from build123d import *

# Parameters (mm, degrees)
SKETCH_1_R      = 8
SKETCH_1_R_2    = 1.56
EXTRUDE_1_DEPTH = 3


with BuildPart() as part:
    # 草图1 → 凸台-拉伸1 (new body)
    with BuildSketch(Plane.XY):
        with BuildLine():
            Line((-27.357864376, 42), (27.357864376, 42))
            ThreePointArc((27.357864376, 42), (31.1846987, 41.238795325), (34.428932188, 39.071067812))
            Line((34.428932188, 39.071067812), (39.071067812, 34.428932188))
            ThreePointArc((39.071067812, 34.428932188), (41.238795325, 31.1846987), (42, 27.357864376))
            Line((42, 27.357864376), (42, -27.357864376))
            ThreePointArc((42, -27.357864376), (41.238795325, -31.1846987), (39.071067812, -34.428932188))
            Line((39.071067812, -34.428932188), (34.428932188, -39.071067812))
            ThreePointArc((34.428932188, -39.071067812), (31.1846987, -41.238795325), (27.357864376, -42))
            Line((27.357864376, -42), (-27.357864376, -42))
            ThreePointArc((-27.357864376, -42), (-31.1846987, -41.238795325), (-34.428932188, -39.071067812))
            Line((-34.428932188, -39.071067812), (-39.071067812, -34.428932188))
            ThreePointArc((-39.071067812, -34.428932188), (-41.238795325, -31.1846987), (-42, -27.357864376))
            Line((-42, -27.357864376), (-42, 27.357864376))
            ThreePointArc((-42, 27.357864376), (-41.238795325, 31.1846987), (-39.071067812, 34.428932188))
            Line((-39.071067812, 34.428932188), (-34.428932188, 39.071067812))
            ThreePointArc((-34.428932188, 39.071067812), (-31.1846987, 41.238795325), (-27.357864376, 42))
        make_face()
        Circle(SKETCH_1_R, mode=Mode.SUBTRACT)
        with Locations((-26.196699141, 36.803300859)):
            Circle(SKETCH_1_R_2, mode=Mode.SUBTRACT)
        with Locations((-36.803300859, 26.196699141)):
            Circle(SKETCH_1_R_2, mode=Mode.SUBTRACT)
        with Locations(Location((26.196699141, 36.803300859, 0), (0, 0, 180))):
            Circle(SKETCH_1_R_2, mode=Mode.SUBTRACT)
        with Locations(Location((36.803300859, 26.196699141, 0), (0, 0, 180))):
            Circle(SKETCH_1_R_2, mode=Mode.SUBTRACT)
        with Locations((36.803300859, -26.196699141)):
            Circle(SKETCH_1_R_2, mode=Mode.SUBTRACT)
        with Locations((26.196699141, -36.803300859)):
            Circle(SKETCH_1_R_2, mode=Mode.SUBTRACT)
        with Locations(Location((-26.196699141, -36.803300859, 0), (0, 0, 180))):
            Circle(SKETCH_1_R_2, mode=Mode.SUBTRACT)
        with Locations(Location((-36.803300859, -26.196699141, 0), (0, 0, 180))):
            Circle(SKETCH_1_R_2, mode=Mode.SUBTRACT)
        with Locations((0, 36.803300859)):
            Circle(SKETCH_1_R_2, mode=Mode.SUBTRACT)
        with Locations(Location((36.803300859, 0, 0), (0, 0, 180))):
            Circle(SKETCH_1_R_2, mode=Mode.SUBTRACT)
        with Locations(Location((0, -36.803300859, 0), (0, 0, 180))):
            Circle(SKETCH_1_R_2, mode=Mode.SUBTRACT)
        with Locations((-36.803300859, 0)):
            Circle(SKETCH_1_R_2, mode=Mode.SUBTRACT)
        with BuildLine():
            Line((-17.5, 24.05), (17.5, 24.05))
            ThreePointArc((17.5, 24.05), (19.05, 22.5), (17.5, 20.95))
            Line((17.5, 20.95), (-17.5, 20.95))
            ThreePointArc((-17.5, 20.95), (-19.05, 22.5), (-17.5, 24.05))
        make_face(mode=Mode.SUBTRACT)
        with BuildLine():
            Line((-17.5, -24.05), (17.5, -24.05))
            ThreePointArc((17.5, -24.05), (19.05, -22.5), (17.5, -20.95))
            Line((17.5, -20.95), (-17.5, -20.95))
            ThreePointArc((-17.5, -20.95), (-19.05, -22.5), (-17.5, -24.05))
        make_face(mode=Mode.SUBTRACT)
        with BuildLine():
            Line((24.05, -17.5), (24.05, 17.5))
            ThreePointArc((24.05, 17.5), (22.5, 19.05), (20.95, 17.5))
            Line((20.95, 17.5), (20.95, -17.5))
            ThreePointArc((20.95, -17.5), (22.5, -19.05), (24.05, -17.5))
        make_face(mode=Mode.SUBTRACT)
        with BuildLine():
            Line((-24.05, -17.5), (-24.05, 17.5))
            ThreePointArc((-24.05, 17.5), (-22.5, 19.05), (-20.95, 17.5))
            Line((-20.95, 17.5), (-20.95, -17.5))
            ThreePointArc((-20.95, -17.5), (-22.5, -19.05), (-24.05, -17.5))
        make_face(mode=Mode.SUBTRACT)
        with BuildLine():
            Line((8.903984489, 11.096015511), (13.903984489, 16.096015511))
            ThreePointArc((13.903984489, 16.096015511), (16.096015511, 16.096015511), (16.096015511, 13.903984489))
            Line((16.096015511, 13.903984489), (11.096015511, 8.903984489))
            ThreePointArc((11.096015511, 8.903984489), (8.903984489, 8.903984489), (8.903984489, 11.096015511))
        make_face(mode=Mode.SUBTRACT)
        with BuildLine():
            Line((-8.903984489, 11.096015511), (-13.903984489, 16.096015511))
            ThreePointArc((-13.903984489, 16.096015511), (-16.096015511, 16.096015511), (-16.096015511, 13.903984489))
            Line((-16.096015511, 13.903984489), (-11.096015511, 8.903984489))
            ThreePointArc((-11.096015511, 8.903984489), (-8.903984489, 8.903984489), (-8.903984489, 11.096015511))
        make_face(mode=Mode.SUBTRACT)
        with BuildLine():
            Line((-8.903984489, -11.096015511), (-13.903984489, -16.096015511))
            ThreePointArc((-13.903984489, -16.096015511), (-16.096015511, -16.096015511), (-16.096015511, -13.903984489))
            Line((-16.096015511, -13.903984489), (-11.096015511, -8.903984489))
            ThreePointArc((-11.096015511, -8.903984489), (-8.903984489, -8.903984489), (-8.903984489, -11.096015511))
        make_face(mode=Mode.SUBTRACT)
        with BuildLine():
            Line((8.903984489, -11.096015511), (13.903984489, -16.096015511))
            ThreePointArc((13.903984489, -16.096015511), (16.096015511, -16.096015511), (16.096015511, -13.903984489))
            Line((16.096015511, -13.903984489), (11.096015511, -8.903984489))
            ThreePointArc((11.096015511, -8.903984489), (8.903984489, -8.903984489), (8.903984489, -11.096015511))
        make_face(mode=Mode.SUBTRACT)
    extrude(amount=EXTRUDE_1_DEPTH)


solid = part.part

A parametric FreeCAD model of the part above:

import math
import FreeCAD as App
import Part
import Sketcher
from FreeCAD import Vector
Q = App.Units.Quantity

doc = App.newDocument("Part")
body = doc.addObject("PartDesign::Body", "Body")

# Sketch on XY plane
sketch1 = doc.addObject("Sketcher::SketchObject", "Sketch")
body.addObject(sketch1)
sketch1.AttachmentSupport = (doc.XY_Plane, [""])
sketch1.MapMode = "FlatFace"
sketch1.addGeometry(Part.LineSegment(Vector(27.4, 42, 0), Vector(-27.4, 42, 0)), False)
sketch1.addGeometry(Part.ArcOfCircle(Part.Circle(Vector(-27.4, 32, 0), Vector(0, 0, 1), 10), math.radians(90), math.radians(135)), False)
sketch1.addGeometry(Part.LineSegment(Vector(-34.4, 39.1, 0), Vector(-39.1, 34.4, 0)), False)
sketch1.addGeometry(Part.ArcOfCircle(Part.Circle(Vector(-32, 27.4, 0), Vector(0, 0, 1), 10), math.radians(135), math.radians(180)), False)
sketch1.addGeometry(Part.LineSegment(Vector(-42, 27.4, 0), Vector(-42, -27.4, 0)), False)
sketch1.addGeometry(Part.ArcOfCircle(Part.Circle(Vector(-32, -27.4, 0), Vector(0, 0, 1), 10), math.radians(180), math.radians(225)), False)
sketch1.addGeometry(Part.LineSegment(Vector(-39.1, -34.4, 0), Vector(-34.4, -39.1, 0)), False)
sketch1.addGeometry(Part.ArcOfCircle(Part.Circle(Vector(-27.4, -32, 0), Vector(0, 0, 1), 10), math.radians(-135), math.radians(-90)), False)
sketch1.addGeometry(Part.LineSegment(Vector(-27.4, -42, 0), Vector(27.4, -42, 0)), False)
sketch1.addGeometry(Part.ArcOfCircle(Part.Circle(Vector(27.4, -32, 0), Vector(0, 0, 1), 10), math.radians(-90), math.radians(-45)), False)
sketch1.addGeometry(Part.LineSegment(Vector(34.4, -39.1, 0), Vector(39.1, -34.4, 0)), False)
sketch1.addGeometry(Part.ArcOfCircle(Part.Circle(Vector(32, -27.4, 0), Vector(0, 0, 1), 10), math.radians(-45), math.radians(0)), False)
sketch1.addGeometry(Part.LineSegment(Vector(42, -27.4, 0), Vector(42, 27.4, 0)), False)
sketch1.addGeometry(Part.ArcOfCircle(Part.Circle(Vector(32, 27.4, 0), Vector(0, 0, 1), 10), math.radians(0), math.radians(45)), False)
sketch1.addGeometry(Part.LineSegment(Vector(39.1, 34.4, 0), Vector(34.4, 39.1, 0)), False)
sketch1.addGeometry(Part.ArcOfCircle(Part.Circle(Vector(27.4, 32, 0), Vector(0, 0, 1), 10), math.radians(45), math.radians(90)), False)
sketch1.addGeometry(Part.Circle(Vector(26.2, -36.8, 0), Vector(0, 0, 1), 1.6), False)
sketch1.addGeometry(Part.Circle(Vector(36.8, -26.2, 0), Vector(0, 0, 1), 1.6), False)
sketch1.addGeometry(Part.ArcOfCircle(Part.Circle(Vector(10, -10, 0), Vector(0, 0, 1), 1.6), math.radians(45), math.radians(225)), False)
sketch1.addGeometry(Part.LineSegment(Vector(11.1, -8.9, 0), Vector(16.1, -13.9, 0)), False)
sketch1.addGeometry(Part.ArcOfCircle(Part.Circle(Vector(15, -15, 0), Vector(0, 0, 1), 1.6), math.radians(-135), math.radians(45)), False)
sketch1.addGeometry(Part.LineSegment(Vector(13.9, -16.1, 0), Vector(8.9, -11.1, 0)), False)
sketch1.addGeometry(Part.Circle(Vector(0, -36.8, 0), Vector(0, 0, 1), 1.6), False)
sketch1.addGeometry(Part.ArcOfCircle(Part.Circle(Vector(-17.5, -22.5, 0), Vector(0, 0, 1), 1.6), math.radians(90), math.radians(270)), False)
sketch1.addGeometry(Part.LineSegment(Vector(-17.5, -20.9, 0), Vector(17.5, -20.9, 0)), False)
sketch1.addGeometry(Part.ArcOfCircle(Part.Circle(Vector(17.5, -22.5, 0), Vector(0, 0, 1), 1.6), math.radians(-90), math.radians(90)), False)
sketch1.addGeometry(Part.LineSegment(Vector(17.5, -24.1, 0), Vector(-17.5, -24.1, 0)), False)
sketch1.addGeometry(Part.Circle(Vector(-26.2, -36.8, 0), Vector(0, 0, 1), 1.6), False)
sketch1.addGeometry(Part.Circle(Vector(-36.8, -26.2, 0), Vector(0, 0, 1), 1.6), False)
sketch1.addGeometry(Part.LineSegment(Vector(-8.9, -11.1, 0), Vector(-13.9, -16.1, 0)), False)
sketch1.addGeometry(Part.ArcOfCircle(Part.Circle(Vector(-15, -15, 0), Vector(0, 0, 1), 1.6), math.radians(135), math.radians(315)), False)
sketch1.addGeometry(Part.LineSegment(Vector(-16.1, -13.9, 0), Vector(-11.1, -8.9, 0)), False)
sketch1.addGeometry(Part.ArcOfCircle(Part.Circle(Vector(-10, -10, 0), Vector(0, 0, 1), 1.6), math.radians(-45), math.radians(135)), False)
sketch1.addGeometry(Part.Circle(Vector(36.8, 0, 0), Vector(0, 0, 1), 1.6), False)
sketch1.addGeometry(Part.ArcOfCircle(Part.Circle(Vector(22.5, -17.5, 0), Vector(0, 0, 1), 1.6), math.radians(180), math.radians(360)), False)
sketch1.addGeometry(Part.LineSegment(Vector(20.9, -17.5, 0), Vector(20.9, 17.5, 0)), False)
sketch1.addGeometry(Part.ArcOfCircle(Part.Circle(Vector(22.5, 17.5, 0), Vector(0, 0, 1), 1.6), math.radians(0), math.radians(180)), False)
sketch1.addGeometry(Part.LineSegment(Vector(24.1, 17.5, 0), Vector(24.1, -17.5, 0)), False)
sketch1.addGeometry(Part.LineSegment(Vector(8.9, 11.1, 0), Vector(13.9, 16.1, 0)), False)
sketch1.addGeometry(Part.ArcOfCircle(Part.Circle(Vector(15, 15, 0), Vector(0, 0, 1), 1.6), math.radians(-45), math.radians(135)), False)
sketch1.addGeometry(Part.LineSegment(Vector(16.1, 13.9, 0), Vector(11.1, 8.9, 0)), False)
sketch1.addGeometry(Part.ArcOfCircle(Part.Circle(Vector(10, 10, 0), Vector(0, 0, 1), 1.6), math.radians(135), math.radians(315)), False)
sketch1.addGeometry(Part.Circle(Vector(36.8, 26.2, 0), Vector(0, 0, 1), 1.6), False)
sketch1.addGeometry(Part.Circle(Vector(26.2, 36.8, 0), Vector(0, 0, 1), 1.6), False)
sketch1.addGeometry(Part.Circle(Vector(0, 0, 0), Vector(0, 0, 1), 8), False)
sketch1.addGeometry(Part.ArcOfCircle(Part.Circle(Vector(-10, 10, 0), Vector(0, 0, 1), 1.6), math.radians(-135), math.radians(45)), False)
sketch1.addGeometry(Part.LineSegment(Vector(-11.1, 8.9, 0), Vector(-16.1, 13.9, 0)), False)
sketch1.addGeometry(Part.ArcOfCircle(Part.Circle(Vector(-15, 15, 0), Vector(0, 0, 1), 1.6), math.radians(45), math.radians(225)), False)
sketch1.addGeometry(Part.LineSegment(Vector(-13.9, 16.1, 0), Vector(-8.9, 11.1, 0)), False)
sketch1.addGeometry(Part.LineSegment(Vector(-24.1, -17.5, 0), Vector(-24.1, 17.5, 0)), False)
sketch1.addGeometry(Part.ArcOfCircle(Part.Circle(Vector(-22.5, 17.5, 0), Vector(0, 0, 1), 1.6), math.radians(0), math.radians(180)), False)
sketch1.addGeometry(Part.LineSegment(Vector(-20.9, 17.5, 0), Vector(-20.9, -17.5, 0)), False)
sketch1.addGeometry(Part.ArcOfCircle(Part.Circle(Vector(-22.5, -17.5, 0), Vector(0, 0, 1), 1.6), math.radians(180), math.radians(360)), False)
sketch1.addGeometry(Part.Circle(Vector(-36.8, 0, 0), Vector(0, 0, 1), 1.6), False)
sketch1.addGeometry(Part.LineSegment(Vector(-17.5, 24.1, 0), Vector(17.5, 24.1, 0)), False)
sketch1.addGeometry(Part.ArcOfCircle(Part.Circle(Vector(17.5, 22.5, 0), Vector(0, 0, 1), 1.6), math.radians(-90), math.radians(90)), False)
sketch1.addGeometry(Part.LineSegment(Vector(17.5, 20.9, 0), Vector(-17.5, 20.9, 0)), False)
sketch1.addGeometry(Part.ArcOfCircle(Part.Circle(Vector(-17.5, 22.5, 0), Vector(0, 0, 1), 1.6), math.radians(90), math.radians(270)), False)
sketch1.addGeometry(Part.Circle(Vector(0, 36.8, 0), Vector(0, 0, 1), 1.6), False)
sketch1.addGeometry(Part.Circle(Vector(-36.8, 26.2, 0), Vector(0, 0, 1), 1.6), False)
sketch1.addGeometry(Part.Circle(Vector(-26.2, 36.8, 0), Vector(0, 0, 1), 1.6), False)
sketch1.addConstraint(Sketcher.Constraint("Tangent", 0, 2, 1, 1))
sketch1.addConstraint(Sketcher.Constraint("Tangent", 1, 2, 2, 1))
sketch1.addConstraint(Sketcher.Constraint("Tangent", 2, 2, 3, 1))
sketch1.addConstraint(Sketcher.Constraint("Tangent", 3, 2, 4, 1))
sketch1.addConstraint(Sketcher.Constraint("Tangent", 4, 2, 5, 1))
sketch1.addConstraint(Sketcher.Constraint("Tangent", 5, 2, 6, 1))
sketch1.addConstraint(Sketcher.Constraint("Tangent", 6, 2, 7, 1))
sketch1.addConstraint(Sketcher.Constraint("Tangent", 7, 2, 8, 1))
sketch1.addConstraint(Sketcher.Constraint("Tangent", 8, 2, 9, 1))
sketch1.addConstraint(Sketcher.Constraint("Tangent", 9, 2, 10, 1))
sketch1.addConstraint(Sketcher.Constraint("Tangent", 10, 2, 11, 1))
sketch1.addConstraint(Sketcher.Constraint("Tangent", 11, 2, 12, 1))
sketch1.addConstraint(Sketcher.Constraint("Tangent", 12, 2, 13, 1))
sketch1.addConstraint(Sketcher.Constraint("Tangent", 13, 2, 14, 1))
sketch1.addConstraint(Sketcher.Constraint("Tangent", 14, 2, 15, 1))
sketch1.addConstraint(Sketcher.Constraint("Tangent", 15, 2, 0, 1))
sketch1.addConstraint(Sketcher.Constraint("Tangent", 18, 1, 19, 1))
sketch1.addConstraint(Sketcher.Constraint("Tangent", 19, 2, 20, 2))
sketch1.addConstraint(Sketcher.Constraint("Tangent", 20, 1, 21, 1))
sketch1.addConstraint(Sketcher.Constraint("Tangent", 21, 2, 18, 2))
sketch1.addConstraint(Sketcher.Constraint("Tangent", 23, 1, 24, 1))
sketch1.addConstraint(Sketcher.Constraint("Tangent", 24, 2, 25, 2))
sketch1.addConstraint(Sketcher.Constraint("Tangent", 25, 1, 26, 1))
sketch1.addConstraint(Sketcher.Constraint("Tangent", 26, 2, 23, 2))
sketch1.addConstraint(Sketcher.Constraint("Tangent", 29, 2, 30, 2))
sketch1.addConstraint(Sketcher.Constraint("Tangent", 30, 1, 31, 1))
sketch1.addConstraint(Sketcher.Constraint("Tangent", 31, 2, 32, 2))
sketch1.addConstraint(Sketcher.Constraint("Tangent", 32, 1, 29, 1))
sketch1.addConstraint(Sketcher.Constraint("Tangent", 34, 1, 35, 1))
sketch1.addConstraint(Sketcher.Constraint("Tangent", 35, 2, 36, 2))
sketch1.addConstraint(Sketcher.Constraint("Tangent", 36, 1, 37, 1))
sketch1.addConstraint(Sketcher.Constraint("Tangent", 37, 2, 34, 2))
sketch1.addConstraint(Sketcher.Constraint("Tangent", 38, 2, 39, 2))
sketch1.addConstraint(Sketcher.Constraint("Tangent", 39, 1, 40, 1))
sketch1.addConstraint(Sketcher.Constraint("Tangent", 40, 2, 41, 2))
sketch1.addConstraint(Sketcher.Constraint("Tangent", 41, 1, 38, 1))
sketch1.addConstraint(Sketcher.Constraint("Tangent", 45, 1, 46, 1))
sketch1.addConstraint(Sketcher.Constraint("Tangent", 46, 2, 47, 2))
sketch1.addConstraint(Sketcher.Constraint("Tangent", 47, 1, 48, 1))
sketch1.addConstraint(Sketcher.Constraint("Tangent", 48, 2, 45, 2))
sketch1.addConstraint(Sketcher.Constraint("Tangent", 49, 2, 50, 2))
sketch1.addConstraint(Sketcher.Constraint("Tangent", 50, 1, 51, 1))
sketch1.addConstraint(Sketcher.Constraint("Tangent", 51, 2, 52, 2))
sketch1.addConstraint(Sketcher.Constraint("Tangent", 52, 1, 49, 1))
sketch1.addConstraint(Sketcher.Constraint("Tangent", 54, 2, 55, 2))
sketch1.addConstraint(Sketcher.Constraint("Tangent", 55, 1, 56, 1))
sketch1.addConstraint(Sketcher.Constraint("Tangent", 56, 2, 57, 2))
sketch1.addConstraint(Sketcher.Constraint("Tangent", 57, 1, 54, 1))
sketch1.addConstraint(Sketcher.Constraint("Horizontal", 0))
sketch1.addConstraint(Sketcher.Constraint("Vertical", 4))
sketch1.addConstraint(Sketcher.Constraint("Horizontal", 8))
sketch1.addConstraint(Sketcher.Constraint("Vertical", 12))
sketch1.addConstraint(Sketcher.Constraint("Horizontal", 24))
sketch1.addConstraint(Sketcher.Constraint("Horizontal", 26))
sketch1.addConstraint(Sketcher.Constraint("Vertical", 35))
sketch1.addConstraint(Sketcher.Constraint("Vertical", 37))
sketch1.addConstraint(Sketcher.Constraint("Vertical", 49))
sketch1.addConstraint(Sketcher.Constraint("Vertical", 51))
sketch1.addConstraint(Sketcher.Constraint("Horizontal", 54))
sketch1.addConstraint(Sketcher.Constraint("Horizontal", 56))
sketch1.addConstraint(Sketcher.Constraint("Coincident", 44, 3, -1, 1))
sketch1.addConstraint(Sketcher.Constraint("Equal", 1, 3))
sketch1.addConstraint(Sketcher.Constraint("Equal", 3, 5))
sketch1.addConstraint(Sketcher.Constraint("Equal", 5, 7))
sketch1.addConstraint(Sketcher.Constraint("Equal", 7, 9))
sketch1.addConstraint(Sketcher.Constraint("Equal", 9, 11))
sketch1.addConstraint(Sketcher.Constraint("Equal", 11, 13))
sketch1.addConstraint(Sketcher.Constraint("Equal", 13, 15))
sketch1.addConstraint(Sketcher.Constraint("Equal", 16, 17))
sketch1.addConstraint(Sketcher.Constraint("Equal", 18, 20))
sketch1.addConstraint(Sketcher.Constraint("Equal", 17, 22))
sketch1.addConstraint(Sketcher.Constraint("Equal", 20, 23))
sketch1.addConstraint(Sketcher.Constraint("Equal", 22, 27))
sketch1.addConstraint(Sketcher.Constraint("Equal", 27, 28))
sketch1.addConstraint(Sketcher.Constraint("Equal", 25, 30))
sketch1.addConstraint(Sketcher.Constraint("Equal", 30, 32))
sketch1.addConstraint(Sketcher.Constraint("Equal", 28, 33))
sketch1.addConstraint(Sketcher.Constraint("Equal", 32, 34))
sketch1.addConstraint(Sketcher.Constraint("Equal", 36, 39))
sketch1.addConstraint(Sketcher.Constraint("Equal", 39, 41))
sketch1.addConstraint(Sketcher.Constraint("Equal", 33, 42))
sketch1.addConstraint(Sketcher.Constraint("Equal", 42, 43))
sketch1.addConstraint(Sketcher.Constraint("Equal", 41, 45))
sketch1.addConstraint(Sketcher.Constraint("Equal", 45, 47))
sketch1.addConstraint(Sketcher.Constraint("Equal", 47, 50))
sketch1.addConstraint(Sketcher.Constraint("Equal", 43, 53))
sketch1.addConstraint(Sketcher.Constraint("Equal", 52, 55))
sketch1.addConstraint(Sketcher.Constraint("Equal", 53, 58))
sketch1.addConstraint(Sketcher.Constraint("Equal", 58, 59))
sketch1.addConstraint(Sketcher.Constraint("Equal", 59, 60))
sketch1.addConstraint(Sketcher.Constraint("Symmetric", 1, 3, 9, 3, -1, 1))
sketch1.addConstraint(Sketcher.Constraint("Symmetric", 3, 3, 11, 3, -1, 1))
sketch1.addConstraint(Sketcher.Constraint("Symmetric", 30, 3, 39, 3, -1, 1))
sketch1.addConstraint(Sketcher.Constraint("Symmetric", 32, 3, 41, 3, -1, 1))
sketch1.addConstraint(Sketcher.Constraint("Symmetric", 28, 3, 42, 3, -1, 1))
sketch1.addConstraint(Sketcher.Constraint("Symmetric", 27, 3, 43, 3, -1, 1))
sketch1.addConstraint(Sketcher.Constraint("Symmetric", 18, 3, 45, 3, -1, 1))
sketch1.addConstraint(Sketcher.Constraint("Symmetric", 20, 3, 47, 3, -1, 1))
sketch1.addConstraint(Sketcher.Constraint("Symmetric", 34, 3, 50, 3, -1, 1))
sketch1.addConstraint(Sketcher.Constraint("Symmetric", 33, 3, 53, 3, -1, 1))
sketch1.addConstraint(Sketcher.Constraint("Symmetric", 23, 3, 55, 3, -1, 1))
sketch1.addConstraint(Sketcher.Constraint("Symmetric", 22, 3, 58, 3, -1, 1))
sketch1.addConstraint(Sketcher.Constraint("Symmetric", 17, 3, 59, 3, -1, 1))
sketch1.addConstraint(Sketcher.Constraint("Symmetric", 16, 3, 60, 3, -1, 1))
sketch1.addConstraint(Sketcher.Constraint("Symmetric", 5, 2, 13, 2, -1, 1))
sketch1.addConstraint(Sketcher.Constraint("Symmetric", 16, 3, 27, 3, -2))
sketch1.addConstraint(Sketcher.Constraint("Symmetric", 17, 3, 28, 3, -2))
sketch1.addConstraint(Sketcher.Constraint("Symmetric", 20, 3, 30, 3, -2))
sketch1.addConstraint(Sketcher.Constraint("Symmetric", 18, 3, 32, 3, -2))
sketch1.addConstraint(Sketcher.Constraint("Symmetric", 6, 2, 9, 2, -2))
sketch1.addConstraint(Sketcher.Constraint("PointOnObject", 22, 3, -2))
sketch1.addConstraint(Sketcher.Constraint("PointOnObject", 33, 3, -1))
sketch1.addConstraint(Sketcher.Constraint("Perpendicular", 2, 6))
sketch1.addConstraint(Sketcher.Constraint("Parallel", 14, 19))
sketch1.addConstraint(Sketcher.Constraint("Horizontal", 16, 3, 22, 3))
sketch1.addConstraint(Sketcher.Constraint("Horizontal", 36, 3, 50, 3))
sketch1.addConstraint(Sketcher.Constraint("Horizontal", 34, 3, 52, 3))
sketch1.addConstraint(Sketcher.Constraint("Vertical", 17, 3, 33, 3))
sketch1.addConstraint(Sketcher.Constraint("Vertical", 25, 3, 55, 3))
sketch1.addConstraint(Sketcher.Constraint("Vertical", 23, 3, 57, 3))
sketch1.addConstraint(Sketcher.Constraint("Equal", 8, 4))
sketch1.addConstraint(Sketcher.Constraint("Equal", 56, 35))
sketch1.addConstraint(Sketcher.Constraint("Diameter", 44, Q("16 mm")))
sketch1.addConstraint(Sketcher.Constraint("Radius", 1, Q("10 mm")))
sketch1.addConstraint(Sketcher.Constraint("Diameter", 16, Q("3.12 mm")))
sketch1.addConstraint(Sketcher.Constraint("DistanceX", 24, 1, 24, 2, Q("35 mm")))
sketch1.addConstraint(Sketcher.Constraint("Radius", 18, Q("1.55 mm")))
sketch1.addConstraint(Sketcher.Constraint("DistanceY", -1, 1, 1, 3, Q("32 mm")))
sketch1.addConstraint(Sketcher.Constraint("DistanceX", -1, 1, 18, 3, Q("10 mm")))
sketch1.addConstraint(Sketcher.Constraint("DistanceY", 18, 3, -1, 1, Q("10 mm")))
sketch1.addConstraint(Sketcher.Constraint("DistanceX", -1, 1, 20, 3, Q("15 mm")))
sketch1.addConstraint(Sketcher.Constraint("DistanceY", 23, 3, -1, 1, Q("22.5 mm")))
sketch1.addConstraint(Sketcher.Constraint("DistanceX", -1, 1, 34, 3, Q("22.5 mm")))
sketch1.addConstraint(Sketcher.Constraint("DistanceX", 0, 2, 0, 1, Q("54.715729 mm")))
sketch1.addConstraint(Sketcher.Constraint("DistanceX", -1, 1, 16, 3, Q("26.196699 mm")))
sketch1.addConstraint(Sketcher.Constraint("DistanceY", 16, 3, -1, 1, Q("36.803301 mm")))
sketch1.addConstraint(Sketcher.Constraint("DistanceX", -1, 1, 17, 3, Q("36.803301 mm")))
sketch1.addConstraint(Sketcher.Constraint("DistanceY", 17, 3, -1, 1, Q("26.196699 mm")))
pad1 = doc.addObject("PartDesign::Pad", "Pad")
body.addObject(pad1)
pad1.Profile = sketch1
pad1.Length = 3

doc.recompute()
